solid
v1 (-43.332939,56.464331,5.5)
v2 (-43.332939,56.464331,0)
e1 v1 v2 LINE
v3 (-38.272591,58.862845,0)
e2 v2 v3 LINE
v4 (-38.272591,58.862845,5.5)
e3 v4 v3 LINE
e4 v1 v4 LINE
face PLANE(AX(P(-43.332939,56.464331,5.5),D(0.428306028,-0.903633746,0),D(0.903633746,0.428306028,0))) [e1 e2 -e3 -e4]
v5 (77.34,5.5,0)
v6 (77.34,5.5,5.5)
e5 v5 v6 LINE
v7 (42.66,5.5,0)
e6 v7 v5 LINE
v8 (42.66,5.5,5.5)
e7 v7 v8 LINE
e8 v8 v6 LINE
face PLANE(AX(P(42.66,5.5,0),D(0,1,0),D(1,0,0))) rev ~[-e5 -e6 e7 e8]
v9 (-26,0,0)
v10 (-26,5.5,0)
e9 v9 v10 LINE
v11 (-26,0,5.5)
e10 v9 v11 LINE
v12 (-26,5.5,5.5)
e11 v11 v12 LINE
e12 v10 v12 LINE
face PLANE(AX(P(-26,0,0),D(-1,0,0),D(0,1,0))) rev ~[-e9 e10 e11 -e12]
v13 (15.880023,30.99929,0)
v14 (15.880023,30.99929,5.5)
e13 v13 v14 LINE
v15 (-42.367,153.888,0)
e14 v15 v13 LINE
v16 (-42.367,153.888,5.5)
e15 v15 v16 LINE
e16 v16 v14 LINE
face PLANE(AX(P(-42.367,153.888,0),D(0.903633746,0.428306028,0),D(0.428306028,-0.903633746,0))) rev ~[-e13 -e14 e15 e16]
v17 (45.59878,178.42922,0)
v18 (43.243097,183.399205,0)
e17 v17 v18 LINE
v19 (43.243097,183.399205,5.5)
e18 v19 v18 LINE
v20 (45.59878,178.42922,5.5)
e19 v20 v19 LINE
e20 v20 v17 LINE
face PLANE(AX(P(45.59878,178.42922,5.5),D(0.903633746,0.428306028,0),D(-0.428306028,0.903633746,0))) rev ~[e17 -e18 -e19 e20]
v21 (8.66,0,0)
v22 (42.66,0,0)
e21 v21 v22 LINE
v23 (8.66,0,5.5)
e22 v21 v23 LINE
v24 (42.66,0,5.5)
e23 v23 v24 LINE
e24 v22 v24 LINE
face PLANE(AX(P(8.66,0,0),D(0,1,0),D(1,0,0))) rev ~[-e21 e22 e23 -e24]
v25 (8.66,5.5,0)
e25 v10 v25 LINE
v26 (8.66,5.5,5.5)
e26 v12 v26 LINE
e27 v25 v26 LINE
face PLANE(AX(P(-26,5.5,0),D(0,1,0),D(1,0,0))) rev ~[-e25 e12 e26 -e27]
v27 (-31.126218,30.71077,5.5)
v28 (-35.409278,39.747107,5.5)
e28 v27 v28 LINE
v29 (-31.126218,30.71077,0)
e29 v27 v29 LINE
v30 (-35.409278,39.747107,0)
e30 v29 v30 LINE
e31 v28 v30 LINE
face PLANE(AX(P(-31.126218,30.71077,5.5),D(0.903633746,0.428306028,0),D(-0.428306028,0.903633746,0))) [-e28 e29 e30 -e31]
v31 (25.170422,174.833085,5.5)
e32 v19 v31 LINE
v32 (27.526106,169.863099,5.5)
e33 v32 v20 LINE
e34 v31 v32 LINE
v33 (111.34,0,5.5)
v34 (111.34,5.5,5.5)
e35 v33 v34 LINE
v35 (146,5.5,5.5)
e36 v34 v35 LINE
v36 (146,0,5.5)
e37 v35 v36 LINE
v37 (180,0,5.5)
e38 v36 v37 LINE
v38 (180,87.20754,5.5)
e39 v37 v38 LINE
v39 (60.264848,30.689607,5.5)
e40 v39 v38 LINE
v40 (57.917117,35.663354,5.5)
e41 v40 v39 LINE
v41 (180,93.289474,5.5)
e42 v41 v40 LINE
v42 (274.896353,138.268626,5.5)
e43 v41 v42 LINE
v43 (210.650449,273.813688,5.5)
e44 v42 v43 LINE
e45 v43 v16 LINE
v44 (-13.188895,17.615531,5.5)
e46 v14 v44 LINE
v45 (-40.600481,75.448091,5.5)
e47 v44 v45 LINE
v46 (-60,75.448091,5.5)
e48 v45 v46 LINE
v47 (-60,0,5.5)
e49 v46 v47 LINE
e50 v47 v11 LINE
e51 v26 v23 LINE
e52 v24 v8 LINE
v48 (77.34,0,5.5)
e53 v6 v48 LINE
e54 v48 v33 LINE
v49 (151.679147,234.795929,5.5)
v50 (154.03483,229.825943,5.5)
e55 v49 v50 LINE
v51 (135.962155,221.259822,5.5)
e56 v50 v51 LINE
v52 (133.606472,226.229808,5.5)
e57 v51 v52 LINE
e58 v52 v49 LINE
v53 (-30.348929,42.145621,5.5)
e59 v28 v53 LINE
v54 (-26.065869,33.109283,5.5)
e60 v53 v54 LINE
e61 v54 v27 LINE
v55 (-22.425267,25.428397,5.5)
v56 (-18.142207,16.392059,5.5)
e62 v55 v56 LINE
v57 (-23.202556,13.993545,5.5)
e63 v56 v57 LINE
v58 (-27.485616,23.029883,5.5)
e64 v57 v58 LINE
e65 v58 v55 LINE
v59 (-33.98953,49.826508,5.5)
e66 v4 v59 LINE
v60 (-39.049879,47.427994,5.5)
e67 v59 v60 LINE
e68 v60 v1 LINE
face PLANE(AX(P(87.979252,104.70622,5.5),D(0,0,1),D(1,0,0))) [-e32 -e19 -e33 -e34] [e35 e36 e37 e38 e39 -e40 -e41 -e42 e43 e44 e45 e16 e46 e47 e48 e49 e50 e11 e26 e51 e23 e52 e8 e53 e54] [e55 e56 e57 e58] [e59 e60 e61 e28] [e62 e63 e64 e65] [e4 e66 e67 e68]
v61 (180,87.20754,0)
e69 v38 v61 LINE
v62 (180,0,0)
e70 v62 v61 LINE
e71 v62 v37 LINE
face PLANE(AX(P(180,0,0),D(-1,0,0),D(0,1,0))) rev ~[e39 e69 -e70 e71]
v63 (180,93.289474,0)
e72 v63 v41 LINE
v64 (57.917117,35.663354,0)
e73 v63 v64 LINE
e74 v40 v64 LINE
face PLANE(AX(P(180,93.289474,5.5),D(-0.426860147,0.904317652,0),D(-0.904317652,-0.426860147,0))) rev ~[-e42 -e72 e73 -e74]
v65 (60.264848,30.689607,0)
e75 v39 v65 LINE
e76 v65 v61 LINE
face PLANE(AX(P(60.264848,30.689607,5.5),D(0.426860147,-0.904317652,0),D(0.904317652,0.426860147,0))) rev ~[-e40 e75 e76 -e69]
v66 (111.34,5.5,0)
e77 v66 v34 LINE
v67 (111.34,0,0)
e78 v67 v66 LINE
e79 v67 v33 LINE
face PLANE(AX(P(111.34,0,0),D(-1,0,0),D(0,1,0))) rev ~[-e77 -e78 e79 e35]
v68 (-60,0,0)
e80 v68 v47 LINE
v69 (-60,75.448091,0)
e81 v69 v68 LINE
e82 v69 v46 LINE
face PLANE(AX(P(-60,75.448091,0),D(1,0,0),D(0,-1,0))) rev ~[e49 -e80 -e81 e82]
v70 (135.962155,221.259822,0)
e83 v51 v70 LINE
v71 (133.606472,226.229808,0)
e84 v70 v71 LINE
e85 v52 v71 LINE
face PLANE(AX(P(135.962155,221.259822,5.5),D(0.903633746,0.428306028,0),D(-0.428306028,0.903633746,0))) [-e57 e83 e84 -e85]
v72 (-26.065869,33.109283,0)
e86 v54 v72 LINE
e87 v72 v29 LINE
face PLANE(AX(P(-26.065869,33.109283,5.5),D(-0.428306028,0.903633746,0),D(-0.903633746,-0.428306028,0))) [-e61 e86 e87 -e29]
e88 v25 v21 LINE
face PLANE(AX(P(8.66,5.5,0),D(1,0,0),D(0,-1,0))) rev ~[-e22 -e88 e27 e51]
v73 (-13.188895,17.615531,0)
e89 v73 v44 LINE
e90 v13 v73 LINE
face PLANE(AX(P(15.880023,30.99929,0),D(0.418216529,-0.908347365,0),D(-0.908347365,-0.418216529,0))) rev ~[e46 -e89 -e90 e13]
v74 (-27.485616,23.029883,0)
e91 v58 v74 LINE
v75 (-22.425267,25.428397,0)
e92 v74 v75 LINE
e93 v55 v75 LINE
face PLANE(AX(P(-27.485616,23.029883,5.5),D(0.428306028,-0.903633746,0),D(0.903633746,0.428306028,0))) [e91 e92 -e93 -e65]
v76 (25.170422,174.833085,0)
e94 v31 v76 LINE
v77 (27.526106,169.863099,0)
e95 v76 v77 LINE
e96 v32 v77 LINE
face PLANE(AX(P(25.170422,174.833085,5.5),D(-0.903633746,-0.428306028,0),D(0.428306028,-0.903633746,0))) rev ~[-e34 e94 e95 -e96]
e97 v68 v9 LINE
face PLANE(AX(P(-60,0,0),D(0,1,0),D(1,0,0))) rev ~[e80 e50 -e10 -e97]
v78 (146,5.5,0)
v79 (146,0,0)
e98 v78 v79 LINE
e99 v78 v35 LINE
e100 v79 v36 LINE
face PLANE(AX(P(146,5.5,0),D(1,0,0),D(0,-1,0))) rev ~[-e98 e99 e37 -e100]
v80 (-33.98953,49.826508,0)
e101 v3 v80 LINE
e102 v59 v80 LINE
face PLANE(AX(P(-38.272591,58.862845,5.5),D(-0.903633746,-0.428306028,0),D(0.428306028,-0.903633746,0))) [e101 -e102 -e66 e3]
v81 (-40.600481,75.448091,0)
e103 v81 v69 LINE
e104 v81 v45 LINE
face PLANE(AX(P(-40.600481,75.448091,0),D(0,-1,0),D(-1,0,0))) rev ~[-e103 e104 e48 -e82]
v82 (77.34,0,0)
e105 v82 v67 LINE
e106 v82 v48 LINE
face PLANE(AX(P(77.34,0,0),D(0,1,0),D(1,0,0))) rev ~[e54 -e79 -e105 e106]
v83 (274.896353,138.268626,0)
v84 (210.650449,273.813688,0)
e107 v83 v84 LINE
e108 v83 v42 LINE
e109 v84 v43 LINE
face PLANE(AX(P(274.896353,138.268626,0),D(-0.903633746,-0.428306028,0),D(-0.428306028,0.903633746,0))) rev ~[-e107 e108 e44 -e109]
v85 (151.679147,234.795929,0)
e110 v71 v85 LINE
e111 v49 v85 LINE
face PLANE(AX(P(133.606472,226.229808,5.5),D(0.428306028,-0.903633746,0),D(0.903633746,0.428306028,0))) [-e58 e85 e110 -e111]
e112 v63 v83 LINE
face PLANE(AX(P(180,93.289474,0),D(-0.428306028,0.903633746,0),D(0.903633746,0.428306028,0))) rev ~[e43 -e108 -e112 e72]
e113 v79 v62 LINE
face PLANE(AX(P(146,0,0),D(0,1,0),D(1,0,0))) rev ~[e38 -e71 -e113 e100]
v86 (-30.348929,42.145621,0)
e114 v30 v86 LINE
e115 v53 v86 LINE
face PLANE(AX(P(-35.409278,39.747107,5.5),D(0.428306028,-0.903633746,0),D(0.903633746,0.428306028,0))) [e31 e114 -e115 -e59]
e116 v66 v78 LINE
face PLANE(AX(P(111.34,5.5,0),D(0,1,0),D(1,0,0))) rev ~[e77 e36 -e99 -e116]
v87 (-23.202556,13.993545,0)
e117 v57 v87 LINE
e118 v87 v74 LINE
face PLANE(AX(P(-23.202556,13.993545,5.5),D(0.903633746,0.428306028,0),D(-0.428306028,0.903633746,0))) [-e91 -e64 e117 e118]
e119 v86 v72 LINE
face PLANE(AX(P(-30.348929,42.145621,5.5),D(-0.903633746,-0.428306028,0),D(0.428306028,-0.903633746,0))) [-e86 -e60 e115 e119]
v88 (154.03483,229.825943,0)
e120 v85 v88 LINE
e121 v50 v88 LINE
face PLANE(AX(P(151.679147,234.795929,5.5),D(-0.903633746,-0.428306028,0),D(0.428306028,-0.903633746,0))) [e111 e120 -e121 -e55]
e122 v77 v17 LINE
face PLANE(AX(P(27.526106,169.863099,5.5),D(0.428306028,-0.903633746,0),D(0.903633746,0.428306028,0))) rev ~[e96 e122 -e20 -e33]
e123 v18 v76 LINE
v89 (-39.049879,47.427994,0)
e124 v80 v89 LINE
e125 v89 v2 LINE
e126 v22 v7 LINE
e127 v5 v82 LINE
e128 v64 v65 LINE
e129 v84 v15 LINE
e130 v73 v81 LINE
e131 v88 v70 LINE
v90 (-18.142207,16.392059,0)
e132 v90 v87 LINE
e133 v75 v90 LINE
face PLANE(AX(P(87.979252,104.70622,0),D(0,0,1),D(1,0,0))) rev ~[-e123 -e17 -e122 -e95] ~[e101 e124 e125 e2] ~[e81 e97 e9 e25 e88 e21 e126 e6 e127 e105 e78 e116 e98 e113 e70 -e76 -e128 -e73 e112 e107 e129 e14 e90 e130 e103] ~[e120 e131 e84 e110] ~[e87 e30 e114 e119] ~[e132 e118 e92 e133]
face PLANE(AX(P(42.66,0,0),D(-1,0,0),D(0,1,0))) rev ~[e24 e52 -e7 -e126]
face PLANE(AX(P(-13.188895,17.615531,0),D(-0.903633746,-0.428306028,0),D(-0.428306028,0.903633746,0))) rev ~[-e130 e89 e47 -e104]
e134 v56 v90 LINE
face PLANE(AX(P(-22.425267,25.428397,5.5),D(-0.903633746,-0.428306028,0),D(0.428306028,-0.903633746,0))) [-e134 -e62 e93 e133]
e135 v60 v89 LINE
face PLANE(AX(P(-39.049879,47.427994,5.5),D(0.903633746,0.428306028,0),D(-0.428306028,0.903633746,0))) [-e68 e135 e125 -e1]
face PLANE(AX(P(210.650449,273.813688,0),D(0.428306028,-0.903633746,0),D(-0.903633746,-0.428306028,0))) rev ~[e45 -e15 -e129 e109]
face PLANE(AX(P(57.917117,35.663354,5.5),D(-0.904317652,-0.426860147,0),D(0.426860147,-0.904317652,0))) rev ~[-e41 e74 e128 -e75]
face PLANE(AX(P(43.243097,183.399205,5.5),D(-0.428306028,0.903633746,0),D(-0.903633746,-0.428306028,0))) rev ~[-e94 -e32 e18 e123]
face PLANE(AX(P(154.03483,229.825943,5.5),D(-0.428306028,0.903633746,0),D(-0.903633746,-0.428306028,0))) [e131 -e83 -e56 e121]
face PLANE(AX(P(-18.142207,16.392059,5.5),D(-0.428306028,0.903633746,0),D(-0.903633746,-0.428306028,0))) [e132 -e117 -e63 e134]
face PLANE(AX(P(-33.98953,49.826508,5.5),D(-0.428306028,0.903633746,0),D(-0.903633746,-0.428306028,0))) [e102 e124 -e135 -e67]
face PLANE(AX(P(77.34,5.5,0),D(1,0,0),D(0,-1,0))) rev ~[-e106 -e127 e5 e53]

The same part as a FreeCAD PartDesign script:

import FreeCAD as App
import Part
import Sketcher


def add_polygon(sketch, points):
    """Adds a closed chain of lines whose ends are joined by coincident constraints."""
    first, n = sketch.GeometryCount, len(points)
    for a, b in zip(points, points[1:] + points[:1]):
        sketch.addGeometry(Part.LineSegment(App.Vector(*a, 0), App.Vector(*b, 0)), False)
    for i in range(n):
        sketch.addConstraint(Sketcher.Constraint("Coincident", first + i, 2, first + (i + 1) % n, 1))

doc = App.newDocument("Part")
body = doc.addObject("PartDesign::Body", "Body")

sketch1 = body.newObject("Sketcher::SketchObject", "Sketch")
sketch1.AttachmentSupport = (doc.getObject("XY_Plane"), [""])
sketch1.MapMode = "FlatFace"
add_polygon(sketch1, [(180, 0), (180, 93), (275, 138), (211, 274), (-42, 154), (16, 31), (-13, 18), (-41, 75), (-60, 75), (-60, 0), (-26, 0), (-26, 6), (9, 6), (9, 0), (43, 0), (43, 6), (77, 6), (77, 0), (111, 0), (111, 6), (146, 6), (146, 0)])
sketch1.addConstraint(Sketcher.Constraint("Vertical", 0))
sketch1.addConstraint(Sketcher.Constraint("Horizontal", 7))
sketch1.addConstraint(Sketcher.Constraint("Vertical", 8))
sketch1.addConstraint(Sketcher.Constraint("Horizontal", 9))
sketch1.addConstraint(Sketcher.Constraint("Vertical", 10))
sketch1.addConstraint(Sketcher.Constraint("Horizontal", 11))
sketch1.addConstraint(Sketcher.Constraint("Vertical", 12))
sketch1.addConstraint(Sketcher.Constraint("Horizontal", 13))
sketch1.addConstraint(Sketcher.Constraint("Vertical", 14))
sketch1.addConstraint(Sketcher.Constraint("Horizontal", 15))
sketch1.addConstraint(Sketcher.Constraint("Vertical", 16))
sketch1.addConstraint(Sketcher.Constraint("Horizontal", 17))
sketch1.addConstraint(Sketcher.Constraint("Vertical", 18))
sketch1.addConstraint(Sketcher.Constraint("Horizontal", 19))
sketch1.addConstraint(Sketcher.Constraint("Vertical", 20))
sketch1.addConstraint(Sketcher.Constraint("Horizontal", 21))
sketch1.addConstraint(Sketcher.Constraint("PointOnObject", 8, 2, -1))
sketch1.addConstraint(Sketcher.Constraint("PointOnObject", 12, 2, -1))
sketch1.addConstraint(Sketcher.Constraint("PointOnObject", 16, 2, -1))
sketch1.addConstraint(Sketcher.Constraint("PointOnObject", 20, 2, -1))
sketch1.addConstraint(Sketcher.Constraint("Perpendicular", 1, 2))
sketch1.addConstraint(Sketcher.Constraint("Perpendicular", 2, 3))
sketch1.addConstraint(Sketcher.Constraint("Perpendicular", 3, 4))
sketch1.addConstraint(Sketcher.Constraint("Parallel", 4, 6))
sketch1.addConstraint(Sketcher.Constraint("Horizontal", 11, 2, 14, 2))
sketch1.addConstraint(Sketcher.Constraint("Horizontal", 15, 2, 18, 2))
sketch1.addConstraint(Sketcher.Constraint("Equal", 9, 13))
sketch1.addConstraint(Sketcher.Constraint("Equal", 13, 17))
sketch1.addConstraint(Sketcher.Constraint("Equal", 11, 19))
sketch1.addConstraint(Sketcher.Constraint("Equal", 17, 21))
sketch1.addConstraint(Sketcher.Constraint("DistanceX", 9, 1, 9, 2, 34.0))
sketch1.addConstraint(Sketcher.Constraint("Distance", 2, 150.0))
sketch1.addConstraint(Sketcher.Constraint("Distance", 3, 280.0))
sketch1.addConstraint(Sketcher.Constraint("Distance", 6, 64.0))
sketch1.addConstraint(Sketcher.Constraint("DistanceY", 10, 1, 10, 2, 5.5))
sketch1.addConstraint(Sketcher.Constraint("DistanceX", -1, 1, 0, 2, 180.0))
sketch1.addConstraint(Sketcher.Constraint("DistanceX", 7, 2, -1, 1, 60.0))
sketch1.addConstraint(Sketcher.Constraint("DistanceX", 11, 1, 11, 2, 34.66))
sketch1.addConstraint(Sketcher.Constraint("DistanceX", 3, 2, -1, 1, 42.367))
sketch1.addConstraint(Sketcher.Constraint("DistanceY", -1, 1, 3, 2, 153.888))
sketch1.addConstraint(Sketcher.Constraint("DistanceX", 7, 2, 7, 1, 19.399519))
sketch1.addConstraint(Sketcher.Constraint("DistanceY", 8, 2, 8, 1, 75.448091))
sketch1.addConstraint(Sketcher.Constraint("DistanceY", 4, 2, 2, 2, 242.814398))
sketch1.addConstraint(Sketcher.Constraint("DistanceY", 4, 2, 6, 2, 44.448801))
pad1 = body.newObject("PartDesign::Pad", "Pad")
pad1.Profile = sketch1
pad1.Length = 5.5

sketch2 = body.newObject("Sketcher::SketchObject", "Sketch001")
sketch2.AttachmentSupport = (doc.getObject("XY_Plane"), [""])
sketch2.MapMode = "FlatFace"
sketch2.AttachmentOffset = App.Placement(App.Vector(0, 0, 5.5), App.Rotation())
add_polygon(sketch2, [(180, 93), (58, 36), (60, 31), (180, 87)])
sketch2.addConstraint(Sketcher.Constraint("Vertical", 3))
sketch2.addConstraint(Sketcher.Constraint("Perpendicular", 0, 1))
sketch2.addConstraint(Sketcher.Constraint("Perpendicular", 1, 2))
sketch2.addConstraint(Sketcher.Constraint("Distance", 0, 135.0))
sketch2.addConstraint(Sketcher.Constraint("DistanceX", -1, 1, 2, 2, 180.0))
sketch2.addConstraint(Sketcher.Constraint("Distance", 1, 5.5))
sketch2.addConstraint(Sketcher.Constraint("DistanceY", 3, 1, 3, 2, 6.081934))
sketch2.addConstraint(Sketcher.Constraint("DistanceY", -1, 1, 2, 2, 87.20754))
pocket1 = body.newObject("PartDesign::Pocket", "Pocket")
pocket1.Profile = sketch2
pocket1.Length = 5.5

sketch3 = body.newObject("Sketcher::SketchObject", "Sketch002")
sketch3.AttachmentSupport = (doc.getObject("XY_Plane"), [""])
sketch3.MapMode = "FlatFace"
sketch3.AttachmentOffset = App.Placement(App.Vector(0, 0, 5.5), App.Rotation())
add_polygon(sketch3, [(-38, 59), (-43, 56), (-39, 47), (-34, 50)])
add_polygon(sketch3, [(-30, 42), (-35, 40), (-31, 31), (-26, 33)])
add_polygon(sketch3, [(-22, 25), (-27, 23), (-23, 14), (-18, 16)])
sketch3.addConstraint(Sketcher.Constraint("Perpendicular", 0, 1))
sketch3.addConstraint(Sketcher.Constraint("Perpendicular", 1, 2))
sketch3.addConstraint(Sketcher.Constraint("Perpendicular", 2, 3))
sketch3.addConstraint(Sketcher.Constraint("Perpendicular", 3, 4))
sketch3.addConstraint(Sketcher.Constraint("Perpendicular", 4, 5))
sketch3.addConstraint(Sketcher.Constraint("Perpendicular", 5, 6))
sketch3.addConstraint(Sketcher.Constraint("Perpendicular", 6, 7))
sketch3.addConstraint(Sketcher.Constraint("Perpendicular", 7, 8))
sketch3.addConstraint(Sketcher.Constraint("Perpendicular", 8, 9))
sketch3.addConstraint(Sketcher.Constraint("Perpendicular", 9, 10))
sketch3.addConstraint(Sketcher.Constraint("Perpendicular", 10, 11))
sketch3.addConstraint(Sketcher.Constraint("Equal", 2, 4))
sketch3.addConstraint(Sketcher.Constraint("Equal", 3, 5))
sketch3.addConstraint(Sketcher.Constraint("Equal", 6, 8))
sketch3.addConstraint(Sketcher.Constraint("Equal", 7, 9))
sketch3.addConstraint(Sketcher.Constraint("Distance", 1, 10.0))
sketch3.addConstraint(Sketcher.Constraint("Distance", 0, 5.6))
sketch3.addConstraint(Sketcher.Constraint("DistanceX", 1, 2, 4, 2, 3.640601))
sketch3.addConstraint(Sketcher.Constraint("DistanceY", 4, 2, 2, 2, 10.079401))
sketch3.addConstraint(Sketcher.Constraint("DistanceX", 5, 2, 8, 2, 3.640601))
sketch3.addConstraint(Sketcher.Constraint("DistanceY", 8, 2, 6, 2, 10.079401))
sketch3.addConstraint(Sketcher.Constraint("DistanceX", 0, 2, -1, 1, 43.332939))
sketch3.addConstraint(Sketcher.Constraint("DistanceY", -1, 1, 0, 2, 56.464331))
sketch3.addConstraint(Sketcher.Constraint("DistanceX", 1, 2, -1, 1, 39.049879))
pocket2 = body.newObject("PartDesign::Pocket", "Pocket001")
pocket2.Profile = sketch3
pocket2.Length = 5.5

sketch4 = body.newObject("Sketcher::SketchObject", "Sketch003")
sketch4.AttachmentSupport = (doc.getObject("XY_Plane"), [""])
sketch4.MapMode = "FlatFace"
sketch4.AttachmentOffset = App.Placement(App.Vector(0, 0, 5.5), App.Rotation())
add_polygon(sketch4, [(25, 175), (28, 170), (46, 178), (43, 183)])
add_polygon(sketch4, [(152, 235), (134, 226), (136, 221), (154, 230)])
sketch4.addConstraint(Sketcher.Constraint("Perpendicular", 0, 1))
sketch4.addConstraint(Sketcher.Constraint("Perpendicular", 1, 2))
sketch4.addConstraint(Sketcher.Constraint("Perpendicular", 2, 3))
sketch4.addConstraint(Sketcher.Constraint("Parallel", 3, 4))
sketch4.addConstraint(Sketcher.Constraint("Perpendicular", 4, 5))
sketch4.addConstraint(Sketcher.Constraint("Perpendicular", 5, 6))
sketch4.addConstraint(Sketcher.Constraint("Perpendicular", 6, 7))
sketch4.addConstraint(Sketcher.Constraint("Equal", 3, 4))
sketch4.addConstraint(Sketcher.Constraint("Equal", 2, 5))
sketch4.addConstraint(Sketcher.Constraint("Distance", 1, 20.0))
sketch4.addConstraint(Sketcher.Constraint("Distance", 0, 5.5))
sketch4.addConstraint(Sketcher.Constraint("DistanceY", -1, 1, 0, 2, 169.863099))
sketch4.addConstraint(Sketcher.Constraint("DistanceX", -1, 1, 1, 2, 45.59878))
sketch4.addConstraint(Sketcher.Constraint("DistanceY", -1, 1, 1, 2, 178.42922))
sketch4.addConstraint(Sketcher.Constraint("DistanceX", -1, 1, 4, 2, 133.606472))
sketch4.addConstraint(Sketcher.Constraint("DistanceY", -1, 1, 4, 2, 226.229808))
pocket3 = body.newObject("PartDesign::Pocket", "Pocket002")
pocket3.Profile = sketch4
pocket3.Length = 5.5

doc.recompute()
